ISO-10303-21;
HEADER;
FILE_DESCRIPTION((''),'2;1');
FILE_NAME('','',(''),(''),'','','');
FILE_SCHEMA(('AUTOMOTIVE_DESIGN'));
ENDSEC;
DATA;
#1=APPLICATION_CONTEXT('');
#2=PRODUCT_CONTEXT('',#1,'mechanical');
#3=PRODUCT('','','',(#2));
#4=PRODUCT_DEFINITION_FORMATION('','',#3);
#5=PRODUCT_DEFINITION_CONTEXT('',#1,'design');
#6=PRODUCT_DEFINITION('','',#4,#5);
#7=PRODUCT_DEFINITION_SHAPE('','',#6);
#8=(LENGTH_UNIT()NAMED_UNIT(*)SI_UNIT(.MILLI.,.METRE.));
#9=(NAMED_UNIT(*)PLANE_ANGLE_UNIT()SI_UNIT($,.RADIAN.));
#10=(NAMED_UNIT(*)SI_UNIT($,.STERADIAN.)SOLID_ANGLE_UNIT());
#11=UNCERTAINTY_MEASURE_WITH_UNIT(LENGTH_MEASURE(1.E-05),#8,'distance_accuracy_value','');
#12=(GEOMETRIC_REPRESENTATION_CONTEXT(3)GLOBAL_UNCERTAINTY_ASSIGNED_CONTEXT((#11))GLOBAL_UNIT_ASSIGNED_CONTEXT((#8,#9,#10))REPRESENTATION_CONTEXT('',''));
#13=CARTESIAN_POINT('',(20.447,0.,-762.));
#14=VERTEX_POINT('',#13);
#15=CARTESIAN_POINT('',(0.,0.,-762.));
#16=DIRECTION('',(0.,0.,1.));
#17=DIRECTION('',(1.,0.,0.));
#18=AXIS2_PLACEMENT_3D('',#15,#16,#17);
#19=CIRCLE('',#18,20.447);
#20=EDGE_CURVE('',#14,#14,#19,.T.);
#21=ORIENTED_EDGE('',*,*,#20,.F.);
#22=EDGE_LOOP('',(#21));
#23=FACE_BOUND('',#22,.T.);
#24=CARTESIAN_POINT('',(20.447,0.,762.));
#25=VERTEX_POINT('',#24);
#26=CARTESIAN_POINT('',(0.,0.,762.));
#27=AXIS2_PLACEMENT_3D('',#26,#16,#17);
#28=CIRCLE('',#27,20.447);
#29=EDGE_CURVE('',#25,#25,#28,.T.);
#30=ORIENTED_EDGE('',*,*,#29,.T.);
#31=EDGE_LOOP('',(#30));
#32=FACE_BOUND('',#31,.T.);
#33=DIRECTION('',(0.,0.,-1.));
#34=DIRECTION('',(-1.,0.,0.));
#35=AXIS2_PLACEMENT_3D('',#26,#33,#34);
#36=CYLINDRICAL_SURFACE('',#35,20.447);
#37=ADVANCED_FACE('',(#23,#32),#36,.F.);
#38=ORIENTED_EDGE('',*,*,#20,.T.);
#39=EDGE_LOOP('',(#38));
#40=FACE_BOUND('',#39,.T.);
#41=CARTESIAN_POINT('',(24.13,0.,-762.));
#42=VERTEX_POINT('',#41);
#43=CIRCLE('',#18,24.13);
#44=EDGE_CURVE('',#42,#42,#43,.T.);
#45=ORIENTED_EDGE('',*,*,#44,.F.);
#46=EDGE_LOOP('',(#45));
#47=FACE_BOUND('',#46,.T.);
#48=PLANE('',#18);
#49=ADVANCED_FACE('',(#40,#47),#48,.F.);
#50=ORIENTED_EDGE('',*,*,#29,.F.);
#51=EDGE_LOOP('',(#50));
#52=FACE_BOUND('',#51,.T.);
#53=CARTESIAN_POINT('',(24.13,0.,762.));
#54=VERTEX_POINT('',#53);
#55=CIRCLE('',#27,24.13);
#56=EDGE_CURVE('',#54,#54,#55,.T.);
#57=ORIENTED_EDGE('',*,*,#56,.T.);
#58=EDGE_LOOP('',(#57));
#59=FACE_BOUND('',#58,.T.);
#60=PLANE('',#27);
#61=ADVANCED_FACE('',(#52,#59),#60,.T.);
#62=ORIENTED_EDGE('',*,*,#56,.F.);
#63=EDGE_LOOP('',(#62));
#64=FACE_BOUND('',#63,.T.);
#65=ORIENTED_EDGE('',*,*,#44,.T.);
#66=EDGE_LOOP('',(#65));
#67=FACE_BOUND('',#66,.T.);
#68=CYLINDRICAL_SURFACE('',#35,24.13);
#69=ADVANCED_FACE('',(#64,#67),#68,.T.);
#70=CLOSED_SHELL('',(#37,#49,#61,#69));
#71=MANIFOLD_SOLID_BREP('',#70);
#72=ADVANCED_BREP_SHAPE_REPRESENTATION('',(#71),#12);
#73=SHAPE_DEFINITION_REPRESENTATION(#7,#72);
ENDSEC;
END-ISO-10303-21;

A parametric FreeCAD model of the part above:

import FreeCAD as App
import Part
import Sketcher
Q = App.Units.Quantity

doc = App.newDocument("Part")
body = doc.addObject("PartDesign::Body", "Body")

# Sketch on XY plane
sketch1 = body.newObject("Sketcher::SketchObject", "Sketch")
sketch1.AttachmentSupport = (doc.getObject("XY_Plane"), [""])
sketch1.MapMode = "FlatFace"
sketch1.addGeometry([
    Part.Circle(App.Vector(0, 0, 0), App.Vector(0, 0, 1), 24),
    Part.Circle(App.Vector(0, 0, 0), App.Vector(0, 0, 1), 20),
], False)
sketch1.addConstraint([
    Sketcher.Constraint("Coincident", 0, 3, -1, 1),
    Sketcher.Constraint("Coincident", 1, 3, -1, 1),
    Sketcher.Constraint("Diameter", 0, Q("1.9 in")),
    Sketcher.Constraint("Diameter", 1, Q("1.61 in")),
])
pad1 = body.newObject("PartDesign::Pad", "Pad")
pad1.Profile = sketch1
pad1.Length = Q("60 in")
pad1.Midplane = True

doc.recompute()
